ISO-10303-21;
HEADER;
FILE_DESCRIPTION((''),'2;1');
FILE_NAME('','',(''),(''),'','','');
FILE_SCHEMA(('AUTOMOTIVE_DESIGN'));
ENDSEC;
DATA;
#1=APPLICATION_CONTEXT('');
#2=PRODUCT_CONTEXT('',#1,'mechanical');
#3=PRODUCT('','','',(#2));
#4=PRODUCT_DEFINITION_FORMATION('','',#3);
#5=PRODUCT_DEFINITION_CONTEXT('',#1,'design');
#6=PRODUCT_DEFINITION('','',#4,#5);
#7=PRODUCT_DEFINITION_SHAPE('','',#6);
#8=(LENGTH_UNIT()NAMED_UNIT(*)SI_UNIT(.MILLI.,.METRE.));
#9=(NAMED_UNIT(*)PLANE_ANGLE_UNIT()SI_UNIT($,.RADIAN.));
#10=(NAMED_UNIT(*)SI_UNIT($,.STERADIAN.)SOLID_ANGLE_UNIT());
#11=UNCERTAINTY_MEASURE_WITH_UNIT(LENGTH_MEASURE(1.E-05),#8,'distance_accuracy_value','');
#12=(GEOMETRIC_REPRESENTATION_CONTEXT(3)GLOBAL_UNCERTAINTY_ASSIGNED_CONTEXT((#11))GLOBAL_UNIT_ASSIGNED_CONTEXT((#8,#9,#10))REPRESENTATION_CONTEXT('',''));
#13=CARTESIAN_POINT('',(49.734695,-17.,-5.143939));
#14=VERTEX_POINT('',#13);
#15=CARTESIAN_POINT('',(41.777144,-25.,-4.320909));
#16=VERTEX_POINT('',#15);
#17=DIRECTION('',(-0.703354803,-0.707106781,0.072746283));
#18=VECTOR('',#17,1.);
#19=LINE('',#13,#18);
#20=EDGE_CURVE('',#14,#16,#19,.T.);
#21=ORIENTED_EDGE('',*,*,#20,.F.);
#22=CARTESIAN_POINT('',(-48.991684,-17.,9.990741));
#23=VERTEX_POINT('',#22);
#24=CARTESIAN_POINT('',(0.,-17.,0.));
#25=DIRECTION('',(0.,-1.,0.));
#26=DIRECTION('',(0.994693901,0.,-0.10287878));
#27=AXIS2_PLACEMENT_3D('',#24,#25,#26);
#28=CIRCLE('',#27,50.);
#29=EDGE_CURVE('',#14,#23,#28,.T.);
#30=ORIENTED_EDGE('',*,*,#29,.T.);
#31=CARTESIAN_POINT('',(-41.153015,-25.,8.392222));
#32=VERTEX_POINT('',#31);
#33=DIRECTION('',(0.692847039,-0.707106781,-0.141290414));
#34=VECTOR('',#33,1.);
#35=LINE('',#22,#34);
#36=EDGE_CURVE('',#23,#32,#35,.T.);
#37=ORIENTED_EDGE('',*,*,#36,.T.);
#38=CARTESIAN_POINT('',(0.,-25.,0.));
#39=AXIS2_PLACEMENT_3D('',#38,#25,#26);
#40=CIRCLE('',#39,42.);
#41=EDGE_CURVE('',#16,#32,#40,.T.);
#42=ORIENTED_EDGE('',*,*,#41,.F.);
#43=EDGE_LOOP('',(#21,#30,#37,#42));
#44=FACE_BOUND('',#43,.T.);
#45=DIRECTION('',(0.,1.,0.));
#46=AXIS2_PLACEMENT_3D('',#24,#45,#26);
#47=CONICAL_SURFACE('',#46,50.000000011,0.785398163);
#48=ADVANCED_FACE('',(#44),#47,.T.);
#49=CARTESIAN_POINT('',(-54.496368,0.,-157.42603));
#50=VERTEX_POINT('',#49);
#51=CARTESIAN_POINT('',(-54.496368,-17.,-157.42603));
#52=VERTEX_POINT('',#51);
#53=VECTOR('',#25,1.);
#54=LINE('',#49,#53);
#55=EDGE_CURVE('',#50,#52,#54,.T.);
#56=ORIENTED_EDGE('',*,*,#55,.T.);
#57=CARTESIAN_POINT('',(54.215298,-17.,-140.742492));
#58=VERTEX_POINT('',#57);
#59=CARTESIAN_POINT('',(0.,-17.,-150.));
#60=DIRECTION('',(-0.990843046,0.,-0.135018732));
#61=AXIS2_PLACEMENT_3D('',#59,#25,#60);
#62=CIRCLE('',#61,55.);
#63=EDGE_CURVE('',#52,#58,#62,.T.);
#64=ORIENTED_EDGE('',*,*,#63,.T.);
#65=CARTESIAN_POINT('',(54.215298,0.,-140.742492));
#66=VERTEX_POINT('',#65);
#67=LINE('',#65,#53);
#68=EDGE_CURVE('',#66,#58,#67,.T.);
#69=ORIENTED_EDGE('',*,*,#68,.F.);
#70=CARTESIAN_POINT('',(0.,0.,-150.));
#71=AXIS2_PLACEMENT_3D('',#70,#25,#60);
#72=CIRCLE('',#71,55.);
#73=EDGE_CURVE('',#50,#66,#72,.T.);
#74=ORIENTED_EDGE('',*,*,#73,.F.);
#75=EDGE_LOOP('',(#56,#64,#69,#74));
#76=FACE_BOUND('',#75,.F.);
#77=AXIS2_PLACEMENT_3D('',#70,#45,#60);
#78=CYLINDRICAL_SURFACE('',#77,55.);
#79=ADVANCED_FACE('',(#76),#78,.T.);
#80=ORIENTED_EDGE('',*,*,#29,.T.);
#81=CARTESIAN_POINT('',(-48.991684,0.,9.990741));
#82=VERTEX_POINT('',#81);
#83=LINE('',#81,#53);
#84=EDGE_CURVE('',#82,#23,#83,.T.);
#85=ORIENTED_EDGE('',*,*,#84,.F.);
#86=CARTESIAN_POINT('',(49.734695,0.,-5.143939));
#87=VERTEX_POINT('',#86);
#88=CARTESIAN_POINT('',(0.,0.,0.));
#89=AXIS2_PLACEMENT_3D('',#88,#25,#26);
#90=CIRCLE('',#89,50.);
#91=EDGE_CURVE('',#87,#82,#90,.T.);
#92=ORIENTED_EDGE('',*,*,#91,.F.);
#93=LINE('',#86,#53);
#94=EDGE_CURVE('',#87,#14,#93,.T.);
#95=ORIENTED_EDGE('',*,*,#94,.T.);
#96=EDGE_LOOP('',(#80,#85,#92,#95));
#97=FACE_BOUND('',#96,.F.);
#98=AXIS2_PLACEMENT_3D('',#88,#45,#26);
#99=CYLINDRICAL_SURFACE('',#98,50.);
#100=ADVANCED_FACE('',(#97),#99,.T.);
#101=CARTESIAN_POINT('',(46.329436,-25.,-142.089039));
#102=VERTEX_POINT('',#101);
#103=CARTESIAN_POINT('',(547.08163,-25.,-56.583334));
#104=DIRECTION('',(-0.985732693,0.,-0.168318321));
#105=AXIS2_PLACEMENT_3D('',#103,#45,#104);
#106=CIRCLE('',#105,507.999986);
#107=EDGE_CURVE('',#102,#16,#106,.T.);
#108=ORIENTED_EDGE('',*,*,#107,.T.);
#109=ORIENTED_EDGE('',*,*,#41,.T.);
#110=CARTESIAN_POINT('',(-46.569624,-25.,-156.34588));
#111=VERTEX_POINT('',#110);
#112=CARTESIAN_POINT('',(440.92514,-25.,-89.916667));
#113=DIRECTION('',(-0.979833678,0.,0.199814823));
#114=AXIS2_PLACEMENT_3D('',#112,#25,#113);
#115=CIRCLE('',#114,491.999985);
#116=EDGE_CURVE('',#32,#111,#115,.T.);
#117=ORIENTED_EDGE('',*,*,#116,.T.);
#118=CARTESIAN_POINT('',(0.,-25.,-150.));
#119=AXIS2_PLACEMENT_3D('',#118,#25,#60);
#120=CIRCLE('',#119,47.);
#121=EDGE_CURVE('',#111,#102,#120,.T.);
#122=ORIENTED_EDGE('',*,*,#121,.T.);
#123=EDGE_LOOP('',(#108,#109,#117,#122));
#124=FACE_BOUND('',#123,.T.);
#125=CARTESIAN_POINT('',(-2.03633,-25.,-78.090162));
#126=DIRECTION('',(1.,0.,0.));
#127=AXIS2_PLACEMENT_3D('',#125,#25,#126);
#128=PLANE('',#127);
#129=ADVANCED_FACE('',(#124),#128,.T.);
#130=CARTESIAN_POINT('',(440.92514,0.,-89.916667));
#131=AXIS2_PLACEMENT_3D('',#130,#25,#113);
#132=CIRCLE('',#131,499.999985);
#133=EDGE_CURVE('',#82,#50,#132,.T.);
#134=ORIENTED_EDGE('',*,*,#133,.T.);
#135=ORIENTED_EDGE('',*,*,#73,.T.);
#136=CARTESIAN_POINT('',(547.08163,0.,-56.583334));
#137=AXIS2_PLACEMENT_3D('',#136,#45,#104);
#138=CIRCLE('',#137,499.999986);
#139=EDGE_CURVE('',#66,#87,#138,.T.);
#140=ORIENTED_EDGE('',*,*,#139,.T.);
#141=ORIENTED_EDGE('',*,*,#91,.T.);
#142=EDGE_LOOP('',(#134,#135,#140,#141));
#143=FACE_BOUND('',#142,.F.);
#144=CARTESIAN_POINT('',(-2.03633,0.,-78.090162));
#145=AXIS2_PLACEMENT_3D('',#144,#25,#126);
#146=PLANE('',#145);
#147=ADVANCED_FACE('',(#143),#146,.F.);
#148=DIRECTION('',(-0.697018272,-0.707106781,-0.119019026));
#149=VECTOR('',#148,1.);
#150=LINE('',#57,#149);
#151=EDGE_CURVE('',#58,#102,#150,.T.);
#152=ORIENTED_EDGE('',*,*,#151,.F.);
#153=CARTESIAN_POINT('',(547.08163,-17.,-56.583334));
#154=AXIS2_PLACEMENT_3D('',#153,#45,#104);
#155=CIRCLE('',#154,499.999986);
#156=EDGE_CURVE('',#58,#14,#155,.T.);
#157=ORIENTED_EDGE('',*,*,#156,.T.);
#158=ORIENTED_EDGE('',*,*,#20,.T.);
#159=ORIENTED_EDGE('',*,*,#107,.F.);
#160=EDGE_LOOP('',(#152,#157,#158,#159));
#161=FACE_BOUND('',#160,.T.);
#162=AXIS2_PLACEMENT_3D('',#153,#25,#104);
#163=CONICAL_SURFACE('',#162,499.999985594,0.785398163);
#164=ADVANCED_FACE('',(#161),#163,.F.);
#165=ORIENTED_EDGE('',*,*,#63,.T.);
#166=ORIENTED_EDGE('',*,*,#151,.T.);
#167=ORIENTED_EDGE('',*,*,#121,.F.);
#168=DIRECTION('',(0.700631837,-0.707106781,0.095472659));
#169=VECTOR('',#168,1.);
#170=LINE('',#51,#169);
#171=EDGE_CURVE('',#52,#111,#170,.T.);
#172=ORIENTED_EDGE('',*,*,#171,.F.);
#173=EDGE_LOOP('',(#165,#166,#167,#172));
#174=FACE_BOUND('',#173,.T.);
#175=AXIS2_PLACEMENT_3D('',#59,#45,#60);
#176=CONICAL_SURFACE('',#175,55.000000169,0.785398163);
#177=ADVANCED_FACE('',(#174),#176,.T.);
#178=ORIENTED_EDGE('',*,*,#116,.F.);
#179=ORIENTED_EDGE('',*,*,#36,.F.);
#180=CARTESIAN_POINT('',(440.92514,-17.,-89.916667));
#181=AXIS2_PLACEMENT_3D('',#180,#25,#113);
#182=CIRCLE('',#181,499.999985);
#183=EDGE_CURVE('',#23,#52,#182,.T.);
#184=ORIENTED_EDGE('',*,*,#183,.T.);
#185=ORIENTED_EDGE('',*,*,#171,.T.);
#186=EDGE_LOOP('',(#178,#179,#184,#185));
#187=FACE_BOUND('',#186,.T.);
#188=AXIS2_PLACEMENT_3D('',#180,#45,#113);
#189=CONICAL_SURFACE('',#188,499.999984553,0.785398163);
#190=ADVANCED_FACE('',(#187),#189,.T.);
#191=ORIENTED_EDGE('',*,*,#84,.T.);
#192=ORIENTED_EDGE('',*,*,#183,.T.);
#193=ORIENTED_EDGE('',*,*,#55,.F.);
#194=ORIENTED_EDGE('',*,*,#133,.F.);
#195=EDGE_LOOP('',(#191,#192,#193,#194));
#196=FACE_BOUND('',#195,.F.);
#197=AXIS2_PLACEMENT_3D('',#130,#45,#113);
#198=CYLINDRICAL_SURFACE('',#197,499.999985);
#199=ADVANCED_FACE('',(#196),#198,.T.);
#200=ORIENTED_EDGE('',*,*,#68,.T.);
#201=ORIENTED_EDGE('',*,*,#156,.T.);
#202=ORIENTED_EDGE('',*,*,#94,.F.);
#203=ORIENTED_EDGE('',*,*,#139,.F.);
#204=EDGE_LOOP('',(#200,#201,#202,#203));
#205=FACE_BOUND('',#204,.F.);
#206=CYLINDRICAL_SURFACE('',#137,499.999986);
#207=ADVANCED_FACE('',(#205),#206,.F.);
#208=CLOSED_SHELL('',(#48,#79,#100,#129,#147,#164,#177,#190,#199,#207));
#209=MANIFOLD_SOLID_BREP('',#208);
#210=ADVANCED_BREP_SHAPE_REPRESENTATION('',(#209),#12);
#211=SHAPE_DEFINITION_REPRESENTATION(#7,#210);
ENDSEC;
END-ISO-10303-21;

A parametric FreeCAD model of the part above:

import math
import FreeCAD as App
import Part
import Sketcher

V = App.Vector


def edges_at(feature, points):
    """Names of the edges that pass closest to the given points."""
    edges = feature.Shape.Edges
    near = lambda p: min(range(len(edges)), key=lambda i: edges[i].distToShape(Part.Vertex(*p))[0])
    return sorted({f"Edge{near(p) + 1}" for p in points})

doc = App.newDocument("Part")
body = doc.addObject("PartDesign::Body", "Body")

# Sketch on XZ plane
sketch1 = doc.addObject("Sketcher::SketchObject", "Sketch")
body.addObject(sketch1)
sketch1.AttachmentSupport = (doc.XZ_Plane, [""])
sketch1.MapMode = "FlatFace"
sketch1.addGeometry([
    Part.ArcOfCircle(Part.Circle(V(547, -57, 0), V(0, 0, 1), 500), math.radians(174.1), math.radians(189.69)),
    Part.ArcOfCircle(Part.Circle(V(0, 0, 0), V(0, 0, 1), 50), math.radians(-6), math.radians(168)),
    Part.ArcOfCircle(Part.Circle(V(441, -90, 0), V(0, 0, 1), 500), math.radians(168.47), math.radians(187.76)),
    Part.ArcOfCircle(Part.Circle(V(0, -150, 0), V(0, 0, 1), 55), math.radians(-172), math.radians(10)),
], False)
sketch1.addConstraint([
    Sketcher.Constraint("Tangent", 0, 1, 1, 1),
    Sketcher.Constraint("Tangent", 1, 2, 2, 1),
    Sketcher.Constraint("Tangent", 2, 2, 3, 1),
    Sketcher.Constraint("Tangent", 3, 2, 0, 2),
    Sketcher.Constraint("Coincident", 1, 3, -1, 1),
    Sketcher.Constraint("Equal", 0, 2),
    Sketcher.Constraint("PointOnObject", 3, 3, -2),
    Sketcher.Constraint("Radius", 1, 50.0),
    Sketcher.Constraint("Radius", 3, 55.0),
    Sketcher.Constraint("DistanceY", 3, 3, -1, 1, 150.0),
    Sketcher.Constraint("Radius", 0, 499.999986),
])
pad1 = doc.addObject("PartDesign::Pad", "Pad")
body.addObject(pad1)
pad1.Profile = sketch1
pad1.Length = 25
doc.recompute()

chamfer = doc.addObject("PartDesign::Chamfer", "Chamfer")
body.addObject(chamfer)
chamfer.Base = (pad1, edges_at(pad1, [(7.576, -25, 49.423)]))
chamfer.Size = 8

doc.recompute()
